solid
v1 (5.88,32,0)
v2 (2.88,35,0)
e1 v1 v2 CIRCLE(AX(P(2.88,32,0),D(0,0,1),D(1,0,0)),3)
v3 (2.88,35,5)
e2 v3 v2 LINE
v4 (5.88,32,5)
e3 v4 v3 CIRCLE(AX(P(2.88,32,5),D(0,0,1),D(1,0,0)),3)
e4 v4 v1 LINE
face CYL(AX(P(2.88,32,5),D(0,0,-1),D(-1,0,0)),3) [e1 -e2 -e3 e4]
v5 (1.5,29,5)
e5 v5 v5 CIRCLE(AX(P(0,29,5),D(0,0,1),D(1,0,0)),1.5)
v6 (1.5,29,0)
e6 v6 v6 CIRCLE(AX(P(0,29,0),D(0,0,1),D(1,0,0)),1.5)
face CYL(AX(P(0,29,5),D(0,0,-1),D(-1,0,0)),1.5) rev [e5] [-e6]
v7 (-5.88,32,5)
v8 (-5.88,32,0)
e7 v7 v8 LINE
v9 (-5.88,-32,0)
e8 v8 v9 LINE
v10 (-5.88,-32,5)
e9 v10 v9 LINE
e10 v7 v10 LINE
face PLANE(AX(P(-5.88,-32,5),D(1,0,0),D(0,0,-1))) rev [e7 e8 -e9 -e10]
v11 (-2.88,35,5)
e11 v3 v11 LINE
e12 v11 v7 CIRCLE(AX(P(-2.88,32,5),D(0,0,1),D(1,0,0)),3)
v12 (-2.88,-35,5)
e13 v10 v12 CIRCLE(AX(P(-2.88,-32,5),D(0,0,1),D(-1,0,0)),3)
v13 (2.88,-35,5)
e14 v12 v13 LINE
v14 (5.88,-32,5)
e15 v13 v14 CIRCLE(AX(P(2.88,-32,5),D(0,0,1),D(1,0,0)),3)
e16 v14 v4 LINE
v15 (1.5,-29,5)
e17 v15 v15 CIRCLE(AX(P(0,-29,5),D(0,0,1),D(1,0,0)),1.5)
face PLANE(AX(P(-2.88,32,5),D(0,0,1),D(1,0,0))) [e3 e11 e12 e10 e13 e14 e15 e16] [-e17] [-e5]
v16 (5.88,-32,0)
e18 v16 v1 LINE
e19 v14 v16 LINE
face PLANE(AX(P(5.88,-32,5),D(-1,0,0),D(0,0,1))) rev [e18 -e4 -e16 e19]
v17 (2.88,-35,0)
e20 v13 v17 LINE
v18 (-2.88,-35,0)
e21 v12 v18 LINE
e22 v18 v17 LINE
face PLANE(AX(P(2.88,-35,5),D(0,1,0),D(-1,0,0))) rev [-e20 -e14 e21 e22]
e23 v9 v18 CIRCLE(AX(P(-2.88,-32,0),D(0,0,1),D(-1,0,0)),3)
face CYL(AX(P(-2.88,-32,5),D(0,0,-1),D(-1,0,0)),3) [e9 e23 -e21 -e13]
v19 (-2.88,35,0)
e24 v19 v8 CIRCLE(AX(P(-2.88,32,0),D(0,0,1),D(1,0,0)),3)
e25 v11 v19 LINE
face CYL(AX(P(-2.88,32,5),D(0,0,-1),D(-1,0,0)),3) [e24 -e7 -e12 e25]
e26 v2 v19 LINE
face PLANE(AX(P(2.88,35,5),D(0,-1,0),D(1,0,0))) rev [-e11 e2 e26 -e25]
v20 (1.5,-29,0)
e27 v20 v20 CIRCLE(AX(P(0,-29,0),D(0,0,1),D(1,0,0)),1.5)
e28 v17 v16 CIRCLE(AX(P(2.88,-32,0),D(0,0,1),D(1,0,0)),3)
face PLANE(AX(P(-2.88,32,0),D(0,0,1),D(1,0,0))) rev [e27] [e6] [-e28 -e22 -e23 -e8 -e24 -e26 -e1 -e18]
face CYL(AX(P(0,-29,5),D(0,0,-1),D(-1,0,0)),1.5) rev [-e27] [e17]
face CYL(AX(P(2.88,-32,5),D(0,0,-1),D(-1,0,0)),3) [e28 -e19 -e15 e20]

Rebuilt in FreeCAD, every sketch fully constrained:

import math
import FreeCAD as App
import Part
import Sketcher
from FreeCAD import Vector

doc = App.newDocument("Part")
body = doc.addObject("PartDesign::Body", "Body")

# Sketch on XY plane
sketch1 = body.newObject("Sketcher::SketchObject", "Sketch")
sketch1.AttachmentSupport = (doc.getObject("XY_Plane"), [""])
sketch1.MapMode = "FlatFace"
sketch1.addGeometry(Part.LineSegment(Vector(-2.9, -35, 0), Vector(2.9, -35, 0)), False)
sketch1.addGeometry(Part.ArcOfCircle(Part.Circle(Vector(2.9, -32, 0), Vector(0, 0, 1), 3), math.radians(-90), math.radians(0)), False)
sketch1.addGeometry(Part.LineSegment(Vector(5.9, -32, 0), Vector(5.9, 32, 0)), False)
sketch1.addGeometry(Part.ArcOfCircle(Part.Circle(Vector(2.9, 32, 0), Vector(0, 0, 1), 3), math.radians(0), math.radians(90)), False)
sketch1.addGeometry(Part.LineSegment(Vector(2.9, 35, 0), Vector(-2.9, 35, 0)), False)
sketch1.addGeometry(Part.ArcOfCircle(Part.Circle(Vector(-2.9, 32, 0), Vector(0, 0, 1), 3), math.radians(90), math.radians(180)), False)
sketch1.addGeometry(Part.LineSegment(Vector(-5.9, 32, 0), Vector(-5.9, -32, 0)), False)
sketch1.addGeometry(Part.ArcOfCircle(Part.Circle(Vector(-2.9, -32, 0), Vector(0, 0, 1), 3), math.radians(180), math.radians(270)), False)
sketch1.addGeometry(Part.Circle(Vector(0, -29, 0), Vector(0, 0, 1), 1.5), False)
sketch1.addGeometry(Part.Circle(Vector(0, 29, 0), Vector(0, 0, 1), 1.5), False)
sketch1.addConstraint(Sketcher.Constraint("Tangent", 0, 2, 1, 1))
sketch1.addConstraint(Sketcher.Constraint("Tangent", 1, 2, 2, 1))
sketch1.addConstraint(Sketcher.Constraint("Tangent", 2, 2, 3, 1))
sketch1.addConstraint(Sketcher.Constraint("Tangent", 3, 2, 4, 1))
sketch1.addConstraint(Sketcher.Constraint("Tangent", 4, 2, 5, 1))
sketch1.addConstraint(Sketcher.Constraint("Tangent", 5, 2, 6, 1))
sketch1.addConstraint(Sketcher.Constraint("Tangent", 6, 2, 7, 1))
sketch1.addConstraint(Sketcher.Constraint("Tangent", 7, 2, 0, 1))
sketch1.addConstraint(Sketcher.Constraint("Horizontal", 0))
sketch1.addConstraint(Sketcher.Constraint("Vertical", 2))
sketch1.addConstraint(Sketcher.Constraint("Horizontal", 4))
sketch1.addConstraint(Sketcher.Constraint("Vertical", 6))
sketch1.addConstraint(Sketcher.Constraint("Equal", 1, 3))
sketch1.addConstraint(Sketcher.Constraint("Equal", 3, 5))
sketch1.addConstraint(Sketcher.Constraint("Equal", 5, 7))
sketch1.addConstraint(Sketcher.Constraint("Equal", 8, 9))
sketch1.addConstraint(Sketcher.Constraint("Symmetric", 1, 3, 5, 3, -1, 1))
sketch1.addConstraint(Sketcher.Constraint("Symmetric", 8, 3, 9, 3, -1, 1))
sketch1.addConstraint(Sketcher.Constraint("PointOnObject", 8, 3, -2))
sketch1.addConstraint(Sketcher.Constraint("Diameter", 8, 3.0))
sketch1.addConstraint(Sketcher.Constraint("Radius", 1, 3.0))
sketch1.addConstraint(Sketcher.Constraint("DistanceY", 2, 1, 2, 2, 64.0))
sketch1.addConstraint(Sketcher.Constraint("DistanceY", 8, 3, -1, 1, 29.0))
sketch1.addConstraint(Sketcher.Constraint("DistanceX", 0, 1, 0, 2, 5.76))
pad1 = body.newObject("PartDesign::Pad", "Pad")
pad1.Profile = sketch1
pad1.Length = 5

doc.recompute()
